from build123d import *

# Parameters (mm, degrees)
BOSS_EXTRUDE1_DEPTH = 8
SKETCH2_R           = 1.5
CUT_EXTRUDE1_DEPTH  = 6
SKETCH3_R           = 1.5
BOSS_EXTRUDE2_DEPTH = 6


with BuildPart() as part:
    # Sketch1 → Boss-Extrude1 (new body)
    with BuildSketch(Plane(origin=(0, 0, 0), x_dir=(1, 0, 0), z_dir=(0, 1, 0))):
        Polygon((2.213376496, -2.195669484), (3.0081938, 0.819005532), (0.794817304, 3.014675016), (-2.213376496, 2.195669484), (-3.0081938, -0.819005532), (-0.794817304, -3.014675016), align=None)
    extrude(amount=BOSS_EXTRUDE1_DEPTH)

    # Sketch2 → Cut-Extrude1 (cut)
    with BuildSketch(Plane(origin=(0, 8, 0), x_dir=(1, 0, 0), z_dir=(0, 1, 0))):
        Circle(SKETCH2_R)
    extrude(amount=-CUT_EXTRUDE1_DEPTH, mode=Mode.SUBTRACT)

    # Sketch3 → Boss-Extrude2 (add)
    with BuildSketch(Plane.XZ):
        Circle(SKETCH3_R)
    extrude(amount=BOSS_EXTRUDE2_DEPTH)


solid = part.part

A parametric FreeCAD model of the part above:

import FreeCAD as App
import Part
import Sketcher
from FreeCAD import Vector
Q = App.Units.Quantity


def add_polygon(sketch, points):
    """Adds a closed chain of lines whose ends are joined by coincident constraints."""
    first, n = sketch.GeometryCount, len(points)
    for a, b in zip(points, points[1:] + points[:1]):
        sketch.addGeometry(Part.LineSegment(App.Vector(*a, 0), App.Vector(*b, 0)), False)
    for i in range(n):
        sketch.addConstraint(Sketcher.Constraint("Coincident", first + i, 2, first + (i + 1) % n, 1))

doc = App.newDocument("Part")
body = doc.addObject("PartDesign::Body", "Body")

sketch1 = doc.addObject("Sketcher::SketchObject", "Sketch")
body.addObject(sketch1)
sketch1.AttachmentSupport = (doc.XZ_Plane, [""])
sketch1.MapMode = "FlatFace"
add_polygon(sketch1, [(2.2, 2.2), (3, -0.8), (0.8, -3), (-2.2, -2.2), (-3, 0.8), (-0.8, 3)])
sketch1.addConstraint([
    Sketcher.Constraint("Symmetric", 0, 2, 3, 2, -1, 1),
    Sketcher.Constraint("Symmetric", 1, 2, 4, 2, -1, 1),
    Sketcher.Constraint("Symmetric", 2, 2, 5, 2, -1, 1),
    Sketcher.Constraint("Equal", 0, 1),
    Sketcher.Constraint("Equal", 1, 2),
    Sketcher.Constraint("Distance", 0, Q("3.117691 mm")),
    Sketcher.Constraint("DistanceY", 2, 2, -1, 1, Q("2.195669 mm")),
    Sketcher.Constraint("DistanceY", 1, 2, 0, 2, Q("2.195669 mm")),
    Sketcher.Constraint("DistanceX", 2, 2, 0, 2, Q("5.22157 mm")),
])
pad1 = doc.addObject("PartDesign::Pad", "Pad")
body.addObject(pad1)
pad1.Profile = sketch1
pad1.Length = 8
pad1.Reversed = True

sketch2 = doc.addObject("Sketcher::SketchObject", "Sketch001")
body.addObject(sketch2)
sketch2.AttachmentSupport = (doc.XZ_Plane, [""])
sketch2.MapMode = "FlatFace"
sketch2.AttachmentOffset = App.Placement(Vector(0, 0, -8), App.Rotation())
sketch2.addGeometry(Part.Circle(Vector(0, 0, 0), Vector(0, 0, 1), 1.5), False)
sketch2.addConstraint([
    Sketcher.Constraint("Coincident", 0, 3, -1, 1),
    Sketcher.Constraint("Diameter", 0, Q("3 mm")),
])
pocket1 = doc.addObject("PartDesign::Pocket", "Pocket")
body.addObject(pocket1)
pocket1.Profile = sketch2
pocket1.Length = 6
pocket1.Reversed = True

sketch3 = doc.addObject("Sketcher::SketchObject", "Sketch002")
body.addObject(sketch3)
sketch3.AttachmentSupport = (doc.XZ_Plane, [""])
sketch3.MapMode = "FlatFace"
sketch3.addGeometry(Part.Circle(Vector(0, 0, 0), Vector(0, 0, 1), 1.5), False)
sketch3.addConstraint([
    Sketcher.Constraint("Coincident", 0, 3, -1, 1),
    Sketcher.Constraint("Diameter", 0, Q("3 mm")),
])
pad2 = doc.addObject("PartDesign::Pad", "Pad001")
body.addObject(pad2)
pad2.Profile = sketch3
pad2.Length = 6

doc.recompute()
